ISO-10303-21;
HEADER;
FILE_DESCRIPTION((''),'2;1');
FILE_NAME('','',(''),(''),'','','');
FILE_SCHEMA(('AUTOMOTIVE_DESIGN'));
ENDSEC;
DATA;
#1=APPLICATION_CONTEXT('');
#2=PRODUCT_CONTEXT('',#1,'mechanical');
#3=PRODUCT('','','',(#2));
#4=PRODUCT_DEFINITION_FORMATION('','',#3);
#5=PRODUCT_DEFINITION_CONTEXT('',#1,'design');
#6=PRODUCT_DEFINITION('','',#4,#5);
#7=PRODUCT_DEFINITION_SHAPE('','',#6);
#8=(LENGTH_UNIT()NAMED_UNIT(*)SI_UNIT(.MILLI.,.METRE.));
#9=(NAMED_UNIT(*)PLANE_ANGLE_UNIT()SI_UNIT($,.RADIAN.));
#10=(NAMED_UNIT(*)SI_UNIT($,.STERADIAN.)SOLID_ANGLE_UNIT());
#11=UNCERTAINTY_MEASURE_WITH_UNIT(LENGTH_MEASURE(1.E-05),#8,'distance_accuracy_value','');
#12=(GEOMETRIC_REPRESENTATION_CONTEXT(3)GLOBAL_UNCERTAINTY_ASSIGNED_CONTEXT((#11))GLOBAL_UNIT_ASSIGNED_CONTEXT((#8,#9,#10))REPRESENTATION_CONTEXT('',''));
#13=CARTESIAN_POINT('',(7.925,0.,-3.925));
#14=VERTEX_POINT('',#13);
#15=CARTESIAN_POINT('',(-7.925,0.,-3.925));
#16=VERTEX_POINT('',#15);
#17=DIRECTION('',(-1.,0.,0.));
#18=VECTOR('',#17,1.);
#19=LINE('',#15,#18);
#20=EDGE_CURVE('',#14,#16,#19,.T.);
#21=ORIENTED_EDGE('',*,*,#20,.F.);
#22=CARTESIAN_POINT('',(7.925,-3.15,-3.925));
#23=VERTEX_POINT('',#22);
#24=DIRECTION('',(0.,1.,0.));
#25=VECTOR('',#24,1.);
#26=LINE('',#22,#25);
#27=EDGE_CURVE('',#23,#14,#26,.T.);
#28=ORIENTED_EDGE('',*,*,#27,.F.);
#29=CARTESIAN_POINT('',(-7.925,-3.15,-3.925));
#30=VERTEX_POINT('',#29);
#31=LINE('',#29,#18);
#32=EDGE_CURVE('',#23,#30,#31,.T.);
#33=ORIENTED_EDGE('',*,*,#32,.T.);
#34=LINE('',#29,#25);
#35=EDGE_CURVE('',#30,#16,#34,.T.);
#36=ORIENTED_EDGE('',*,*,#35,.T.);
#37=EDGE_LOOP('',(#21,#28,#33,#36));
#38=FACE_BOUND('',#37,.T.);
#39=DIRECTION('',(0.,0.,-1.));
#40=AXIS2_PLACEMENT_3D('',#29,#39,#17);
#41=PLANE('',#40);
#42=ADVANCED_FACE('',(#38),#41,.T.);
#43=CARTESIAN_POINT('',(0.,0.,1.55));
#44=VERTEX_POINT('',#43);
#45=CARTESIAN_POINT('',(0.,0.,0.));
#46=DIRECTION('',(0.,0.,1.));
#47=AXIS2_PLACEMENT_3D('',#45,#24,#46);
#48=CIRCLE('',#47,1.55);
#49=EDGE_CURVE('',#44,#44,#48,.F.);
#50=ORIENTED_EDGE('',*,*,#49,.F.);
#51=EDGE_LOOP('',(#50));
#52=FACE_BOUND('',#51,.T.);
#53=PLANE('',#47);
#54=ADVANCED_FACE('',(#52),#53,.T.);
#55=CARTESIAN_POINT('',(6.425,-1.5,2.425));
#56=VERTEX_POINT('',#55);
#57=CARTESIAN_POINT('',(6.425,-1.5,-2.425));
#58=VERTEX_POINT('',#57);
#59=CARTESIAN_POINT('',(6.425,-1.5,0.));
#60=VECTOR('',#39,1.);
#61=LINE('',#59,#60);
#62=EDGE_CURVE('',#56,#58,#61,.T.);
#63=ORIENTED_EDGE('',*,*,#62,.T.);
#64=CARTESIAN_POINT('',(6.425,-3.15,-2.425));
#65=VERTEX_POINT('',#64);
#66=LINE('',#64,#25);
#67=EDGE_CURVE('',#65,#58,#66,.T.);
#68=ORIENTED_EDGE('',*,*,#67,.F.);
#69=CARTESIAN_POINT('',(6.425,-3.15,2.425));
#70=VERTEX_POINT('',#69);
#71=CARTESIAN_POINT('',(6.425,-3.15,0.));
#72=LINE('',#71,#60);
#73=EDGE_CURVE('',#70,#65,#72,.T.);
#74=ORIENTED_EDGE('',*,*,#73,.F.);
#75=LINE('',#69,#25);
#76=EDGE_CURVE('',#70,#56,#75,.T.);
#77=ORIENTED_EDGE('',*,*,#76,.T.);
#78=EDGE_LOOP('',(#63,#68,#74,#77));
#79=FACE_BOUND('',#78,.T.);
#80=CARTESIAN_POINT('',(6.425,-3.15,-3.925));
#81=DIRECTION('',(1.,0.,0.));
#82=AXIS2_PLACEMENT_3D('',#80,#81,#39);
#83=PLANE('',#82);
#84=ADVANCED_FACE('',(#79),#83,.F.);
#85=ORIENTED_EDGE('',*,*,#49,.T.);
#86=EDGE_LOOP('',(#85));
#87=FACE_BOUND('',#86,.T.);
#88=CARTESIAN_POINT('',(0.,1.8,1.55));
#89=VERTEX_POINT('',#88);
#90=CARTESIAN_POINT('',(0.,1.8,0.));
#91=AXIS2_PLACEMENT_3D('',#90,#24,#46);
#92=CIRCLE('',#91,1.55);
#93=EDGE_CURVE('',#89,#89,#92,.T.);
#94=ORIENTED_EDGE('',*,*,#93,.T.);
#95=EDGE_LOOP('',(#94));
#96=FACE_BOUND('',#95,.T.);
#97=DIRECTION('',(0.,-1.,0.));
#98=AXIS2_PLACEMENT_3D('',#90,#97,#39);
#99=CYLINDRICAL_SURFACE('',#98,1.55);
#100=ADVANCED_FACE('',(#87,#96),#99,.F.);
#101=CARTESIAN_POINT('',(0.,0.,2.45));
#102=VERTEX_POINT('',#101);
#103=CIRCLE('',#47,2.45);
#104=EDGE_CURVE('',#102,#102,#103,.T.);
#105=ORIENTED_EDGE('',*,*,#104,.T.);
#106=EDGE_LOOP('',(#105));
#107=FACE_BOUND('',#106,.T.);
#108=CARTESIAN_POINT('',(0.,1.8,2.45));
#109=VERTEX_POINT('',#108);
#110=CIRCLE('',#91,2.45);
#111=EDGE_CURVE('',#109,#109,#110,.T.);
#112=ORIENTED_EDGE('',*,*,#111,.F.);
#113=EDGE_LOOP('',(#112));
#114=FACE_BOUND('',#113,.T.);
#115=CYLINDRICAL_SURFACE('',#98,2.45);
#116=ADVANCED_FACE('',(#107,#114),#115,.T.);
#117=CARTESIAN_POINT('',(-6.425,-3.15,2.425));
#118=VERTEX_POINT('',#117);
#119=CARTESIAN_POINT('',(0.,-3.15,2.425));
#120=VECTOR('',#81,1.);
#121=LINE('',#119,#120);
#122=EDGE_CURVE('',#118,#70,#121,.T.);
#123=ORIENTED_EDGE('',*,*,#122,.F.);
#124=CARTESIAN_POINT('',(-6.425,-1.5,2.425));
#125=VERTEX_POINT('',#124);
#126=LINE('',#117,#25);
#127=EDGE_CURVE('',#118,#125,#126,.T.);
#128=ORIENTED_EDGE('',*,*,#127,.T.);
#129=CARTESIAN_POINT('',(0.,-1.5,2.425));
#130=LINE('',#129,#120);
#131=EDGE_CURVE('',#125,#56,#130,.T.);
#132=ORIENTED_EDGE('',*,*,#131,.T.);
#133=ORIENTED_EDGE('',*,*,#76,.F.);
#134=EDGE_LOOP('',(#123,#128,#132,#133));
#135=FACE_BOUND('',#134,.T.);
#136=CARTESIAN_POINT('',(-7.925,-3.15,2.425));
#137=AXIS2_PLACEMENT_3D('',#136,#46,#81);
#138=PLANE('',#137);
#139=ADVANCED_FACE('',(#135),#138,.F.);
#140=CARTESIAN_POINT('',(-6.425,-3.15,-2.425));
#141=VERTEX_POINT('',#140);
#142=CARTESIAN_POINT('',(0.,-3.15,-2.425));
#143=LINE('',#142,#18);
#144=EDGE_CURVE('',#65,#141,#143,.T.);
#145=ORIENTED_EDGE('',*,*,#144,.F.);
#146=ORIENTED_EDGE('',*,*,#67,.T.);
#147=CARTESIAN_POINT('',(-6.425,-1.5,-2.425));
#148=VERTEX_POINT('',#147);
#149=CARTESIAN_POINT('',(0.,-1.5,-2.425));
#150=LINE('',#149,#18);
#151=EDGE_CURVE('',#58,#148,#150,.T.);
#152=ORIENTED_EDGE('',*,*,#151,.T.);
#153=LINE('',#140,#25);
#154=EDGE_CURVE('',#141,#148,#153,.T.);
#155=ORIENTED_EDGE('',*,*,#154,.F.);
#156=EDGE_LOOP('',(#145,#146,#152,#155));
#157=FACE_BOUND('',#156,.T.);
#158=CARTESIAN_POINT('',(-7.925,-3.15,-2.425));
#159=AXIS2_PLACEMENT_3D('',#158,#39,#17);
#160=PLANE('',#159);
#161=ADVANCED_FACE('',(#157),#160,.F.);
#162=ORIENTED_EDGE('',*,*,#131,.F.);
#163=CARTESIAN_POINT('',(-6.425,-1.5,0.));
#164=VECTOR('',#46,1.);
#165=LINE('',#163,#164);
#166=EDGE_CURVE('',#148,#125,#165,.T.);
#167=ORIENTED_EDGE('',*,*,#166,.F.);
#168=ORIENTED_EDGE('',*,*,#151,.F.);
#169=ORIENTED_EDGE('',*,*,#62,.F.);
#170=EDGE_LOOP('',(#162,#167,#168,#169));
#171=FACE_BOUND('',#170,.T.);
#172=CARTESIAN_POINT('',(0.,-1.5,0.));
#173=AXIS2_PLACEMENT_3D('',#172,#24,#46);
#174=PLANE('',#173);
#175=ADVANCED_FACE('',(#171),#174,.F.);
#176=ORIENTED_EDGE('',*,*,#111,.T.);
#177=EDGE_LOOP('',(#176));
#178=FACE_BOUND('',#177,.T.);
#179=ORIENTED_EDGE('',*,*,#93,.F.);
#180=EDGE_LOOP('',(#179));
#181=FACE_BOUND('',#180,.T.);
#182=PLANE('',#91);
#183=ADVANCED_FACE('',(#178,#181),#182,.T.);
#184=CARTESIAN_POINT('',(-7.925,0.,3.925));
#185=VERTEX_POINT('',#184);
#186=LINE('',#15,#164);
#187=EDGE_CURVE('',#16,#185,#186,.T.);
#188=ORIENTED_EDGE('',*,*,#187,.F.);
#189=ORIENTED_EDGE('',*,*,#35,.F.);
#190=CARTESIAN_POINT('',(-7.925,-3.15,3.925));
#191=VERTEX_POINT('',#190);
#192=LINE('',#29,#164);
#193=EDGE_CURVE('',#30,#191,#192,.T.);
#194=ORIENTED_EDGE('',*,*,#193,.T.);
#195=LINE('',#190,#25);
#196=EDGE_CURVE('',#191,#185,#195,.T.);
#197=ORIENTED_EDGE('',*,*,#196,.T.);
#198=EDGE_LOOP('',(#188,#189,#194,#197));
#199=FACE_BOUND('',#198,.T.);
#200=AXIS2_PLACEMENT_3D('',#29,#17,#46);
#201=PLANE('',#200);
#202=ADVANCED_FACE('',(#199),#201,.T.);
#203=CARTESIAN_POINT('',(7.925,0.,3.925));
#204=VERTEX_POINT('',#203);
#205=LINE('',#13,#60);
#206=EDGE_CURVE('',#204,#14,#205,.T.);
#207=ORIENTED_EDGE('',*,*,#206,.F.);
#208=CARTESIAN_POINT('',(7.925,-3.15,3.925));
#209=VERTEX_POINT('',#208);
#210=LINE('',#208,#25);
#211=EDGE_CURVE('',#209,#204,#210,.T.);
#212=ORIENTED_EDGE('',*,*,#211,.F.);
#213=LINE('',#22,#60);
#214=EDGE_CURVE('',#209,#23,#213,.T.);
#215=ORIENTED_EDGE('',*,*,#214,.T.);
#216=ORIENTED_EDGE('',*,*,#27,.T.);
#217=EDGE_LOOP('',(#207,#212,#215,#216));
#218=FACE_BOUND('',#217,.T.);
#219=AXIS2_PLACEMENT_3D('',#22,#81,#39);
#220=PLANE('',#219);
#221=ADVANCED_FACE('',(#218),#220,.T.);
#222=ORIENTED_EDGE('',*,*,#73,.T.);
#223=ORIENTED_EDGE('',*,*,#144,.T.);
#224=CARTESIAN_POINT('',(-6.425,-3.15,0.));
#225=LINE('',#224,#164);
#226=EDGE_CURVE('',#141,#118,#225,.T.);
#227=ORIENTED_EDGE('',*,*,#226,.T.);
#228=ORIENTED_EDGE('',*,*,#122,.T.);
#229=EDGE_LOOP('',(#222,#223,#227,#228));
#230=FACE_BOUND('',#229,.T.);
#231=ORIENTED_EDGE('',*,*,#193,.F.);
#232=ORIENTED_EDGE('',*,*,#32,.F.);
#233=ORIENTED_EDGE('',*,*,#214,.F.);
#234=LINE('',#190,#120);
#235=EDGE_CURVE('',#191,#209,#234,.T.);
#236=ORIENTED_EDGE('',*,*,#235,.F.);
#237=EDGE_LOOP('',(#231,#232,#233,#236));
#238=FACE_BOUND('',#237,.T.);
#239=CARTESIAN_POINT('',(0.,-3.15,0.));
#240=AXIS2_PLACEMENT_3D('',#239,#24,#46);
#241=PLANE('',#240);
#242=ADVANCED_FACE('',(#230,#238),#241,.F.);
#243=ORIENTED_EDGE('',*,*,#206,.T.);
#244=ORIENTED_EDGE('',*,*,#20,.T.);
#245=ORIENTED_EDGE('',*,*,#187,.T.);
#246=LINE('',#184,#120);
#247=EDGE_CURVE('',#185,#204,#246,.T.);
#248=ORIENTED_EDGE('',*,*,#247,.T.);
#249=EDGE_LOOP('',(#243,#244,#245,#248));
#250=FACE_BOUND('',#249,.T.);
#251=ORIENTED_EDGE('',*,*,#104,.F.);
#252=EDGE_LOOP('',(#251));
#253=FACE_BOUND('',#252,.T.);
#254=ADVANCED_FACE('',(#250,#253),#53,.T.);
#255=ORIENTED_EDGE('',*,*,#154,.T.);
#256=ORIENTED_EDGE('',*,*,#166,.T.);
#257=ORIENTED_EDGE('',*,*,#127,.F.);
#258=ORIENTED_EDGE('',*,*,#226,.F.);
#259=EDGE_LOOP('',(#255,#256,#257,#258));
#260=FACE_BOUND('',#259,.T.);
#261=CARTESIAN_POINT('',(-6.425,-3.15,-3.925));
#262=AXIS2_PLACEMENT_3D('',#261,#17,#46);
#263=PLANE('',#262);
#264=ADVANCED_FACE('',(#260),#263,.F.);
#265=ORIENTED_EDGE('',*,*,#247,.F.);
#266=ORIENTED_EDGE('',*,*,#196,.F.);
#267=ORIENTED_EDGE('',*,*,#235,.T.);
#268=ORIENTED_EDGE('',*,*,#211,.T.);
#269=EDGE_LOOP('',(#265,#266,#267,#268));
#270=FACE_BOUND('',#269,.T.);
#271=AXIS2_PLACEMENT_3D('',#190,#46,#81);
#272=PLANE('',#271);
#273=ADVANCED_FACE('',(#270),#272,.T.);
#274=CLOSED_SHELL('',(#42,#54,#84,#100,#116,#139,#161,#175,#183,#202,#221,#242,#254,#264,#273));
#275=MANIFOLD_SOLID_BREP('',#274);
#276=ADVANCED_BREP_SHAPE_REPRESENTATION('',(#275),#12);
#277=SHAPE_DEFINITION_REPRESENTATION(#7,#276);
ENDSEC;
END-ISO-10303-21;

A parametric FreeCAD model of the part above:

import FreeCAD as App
import Part
import Sketcher

V = App.Vector


def faces_at(feature, points):
    """Names of the faces that lie closest to the given points."""
    faces = feature.Shape.Faces
    near = lambda p: min(range(len(faces)), key=lambda i: faces[i].distToShape(Part.Vertex(*p))[0])
    return sorted({f"Face{near(p) + 1}" for p in points})

doc = App.newDocument("Part")
body = doc.addObject("PartDesign::Body", "Body")

sketch1 = body.newObject("Sketcher::SketchObject", "Sketch")
sketch1.AttachmentSupport = (doc.getObject("XZ_Plane"), [""])
sketch1.MapMode = "FlatFace"
sketch1.addGeometry([
    Part.LineSegment(V(-8, -4, 0), V(-8, 4, 0)),
    Part.LineSegment(V(-8, 4, 0), V(8, 4, 0)),
    Part.LineSegment(V(8, 4, 0), V(8, -4, 0)),
    Part.LineSegment(V(8, -4, 0), V(-8, -4, 0)),
], False)
sketch1.addConstraint([
    Sketcher.Constraint("Coincident", 0, 2, 1, 1),
    Sketcher.Constraint("Coincident", 1, 2, 2, 1),
    Sketcher.Constraint("Coincident", 2, 2, 3, 1),
    Sketcher.Constraint("Coincident", 3, 2, 0, 1),
    Sketcher.Constraint("Vertical", 0),
    Sketcher.Constraint("Horizontal", 1),
    Sketcher.Constraint("Vertical", 2),
    Sketcher.Constraint("Horizontal", 3),
    Sketcher.Constraint("Symmetric", 0, 2, 2, 2, -1, 1),
    Sketcher.Constraint("DistanceX", 1, 1, 1, 2, 15.85),
    Sketcher.Constraint("DistanceY", 0, 1, 0, 2, 7.85),
])
pad1 = body.newObject("PartDesign::Pad", "Pad")
pad1.Profile = sketch1
pad1.Length = 3.15
doc.recompute()

thickness = body.newObject("PartDesign::Thickness", "Thickness")
thickness.Base = (pad1, faces_at(pad1, [(0, -3.15, 0)]))
thickness.Value = 1.5
thickness.Reversed = True
thickness.Join = "Intersection"

sketch2 = body.newObject("Sketcher::SketchObject", "Sketch001")
sketch2.AttachmentSupport = (doc.getObject("XZ_Plane"), [""])
sketch2.MapMode = "FlatFace"
sketch2.addGeometry([
    Part.Circle(V(0, 0, 0), V(0, 0, 1), 2.5),
    Part.Circle(V(0, 0, 0), V(0, 0, 1), 1.6),
], False)
sketch2.addConstraint([
    Sketcher.Constraint("Coincident", 0, 3, -1, 1),
    Sketcher.Constraint("Coincident", 1, 3, -1, 1),
    Sketcher.Constraint("Diameter", 0, 4.9),
    Sketcher.Constraint("Diameter", 1, 3.1),
])
pad2 = body.newObject("PartDesign::Pad", "Pad001")
pad2.Profile = sketch2
pad2.Length = 1.8
pad2.Reversed = True

doc.recompute()
